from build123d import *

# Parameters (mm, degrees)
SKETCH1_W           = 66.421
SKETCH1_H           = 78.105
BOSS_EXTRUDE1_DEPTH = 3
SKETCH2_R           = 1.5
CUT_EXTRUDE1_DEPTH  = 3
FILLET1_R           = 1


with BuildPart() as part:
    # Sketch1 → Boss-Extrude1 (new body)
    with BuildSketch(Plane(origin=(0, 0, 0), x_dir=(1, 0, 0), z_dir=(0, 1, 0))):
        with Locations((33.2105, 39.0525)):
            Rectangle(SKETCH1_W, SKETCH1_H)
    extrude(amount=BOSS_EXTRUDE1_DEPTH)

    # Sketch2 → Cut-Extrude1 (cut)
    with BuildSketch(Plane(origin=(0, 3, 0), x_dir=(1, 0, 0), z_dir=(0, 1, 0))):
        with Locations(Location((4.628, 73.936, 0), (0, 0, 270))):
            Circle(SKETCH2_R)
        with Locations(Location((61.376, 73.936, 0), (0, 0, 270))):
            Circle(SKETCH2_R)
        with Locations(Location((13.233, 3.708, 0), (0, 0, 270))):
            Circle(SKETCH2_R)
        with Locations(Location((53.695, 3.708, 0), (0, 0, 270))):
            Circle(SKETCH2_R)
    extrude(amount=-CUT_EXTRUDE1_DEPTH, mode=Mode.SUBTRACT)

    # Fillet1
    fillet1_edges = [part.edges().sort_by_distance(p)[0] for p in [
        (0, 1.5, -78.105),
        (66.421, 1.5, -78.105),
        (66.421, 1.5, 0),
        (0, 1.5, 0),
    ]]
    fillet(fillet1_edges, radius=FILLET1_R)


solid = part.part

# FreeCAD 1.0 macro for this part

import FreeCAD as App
import Part
import Sketcher
from FreeCAD import Vector
Q = App.Units.Quantity


def edges_at(feature, points):
    """Names of the edges that pass closest to the given points."""
    edges = feature.Shape.Edges
    near = lambda p: min(range(len(edges)), key=lambda i: edges[i].distToShape(Part.Vertex(*p))[0])
    return sorted({f"Edge{near(p) + 1}" for p in points})


def add_polygon(sketch, points):
    """Adds a closed chain of lines whose ends are joined by coincident constraints."""
    first, n = sketch.GeometryCount, len(points)
    for a, b in zip(points, points[1:] + points[:1]):
        sketch.addGeometry(Part.LineSegment(App.Vector(*a, 0), App.Vector(*b, 0)), False)
    for i in range(n):
        sketch.addConstraint(Sketcher.Constraint("Coincident", first + i, 2, first + (i + 1) % n, 1))

doc = App.newDocument("Part")
body = doc.addObject("PartDesign::Body", "Body")

sketch1 = doc.addObject("Sketcher::SketchObject", "Sketch")
body.addObject(sketch1)
sketch1.AttachmentSupport = (doc.XZ_Plane, [""])
sketch1.MapMode = "FlatFace"
add_polygon(sketch1, [(0, -78), (0, 0), (66, 0), (66, -78)])
sketch1.addConstraint([
    Sketcher.Constraint("Vertical", 0),
    Sketcher.Constraint("Horizontal", 1),
    Sketcher.Constraint("Vertical", 2),
    Sketcher.Constraint("Horizontal", 3),
    Sketcher.Constraint("Coincident", 0, 2, -1, 1),
    Sketcher.Constraint("DistanceX", 1, 1, 1, 2, Q("66.421 mm")),
    Sketcher.Constraint("DistanceY", 0, 1, 0, 2, Q("78.105 mm")),
])
pad1 = doc.addObject("PartDesign::Pad", "Pad")
body.addObject(pad1)
pad1.Profile = sketch1
pad1.Length = 3
pad1.Reversed = True

sketch2 = doc.addObject("Sketcher::SketchObject", "Sketch001")
body.addObject(sketch2)
sketch2.AttachmentSupport = (doc.XZ_Plane, [""])
sketch2.MapMode = "FlatFace"
sketch2.AttachmentOffset = App.Placement(Vector(0, 0, -3), App.Rotation())
sketch2.addGeometry([
    Part.Circle(Vector(4.6, -73.9, 0), Vector(0, 0, 1), 1.5),
    Part.Circle(Vector(61.4, -73.9, 0), Vector(0, 0, 1), 1.5),
    Part.Circle(Vector(13.2, -3.7, 0), Vector(0, 0, 1), 1.5),
    Part.Circle(Vector(53.7, -3.7, 0), Vector(0, 0, 1), 1.5),
], False)
sketch2.addConstraint([
    Sketcher.Constraint("Equal", 0, 1),
    Sketcher.Constraint("Equal", 1, 2),
    Sketcher.Constraint("Equal", 2, 3),
    Sketcher.Constraint("Horizontal", 0, 3, 1, 3),
    Sketcher.Constraint("Horizontal", 2, 3, 3, 3),
    Sketcher.Constraint("Diameter", 0, Q("3 mm")),
    Sketcher.Constraint("DistanceX", -1, 1, 0, 3, Q("4.628 mm")),
    Sketcher.Constraint("DistanceY", 0, 3, -1, 1, Q("73.936 mm")),
    Sketcher.Constraint("DistanceX", -1, 1, 1, 3, Q("61.376 mm")),
    Sketcher.Constraint("DistanceX", -1, 1, 2, 3, Q("13.233 mm")),
    Sketcher.Constraint("DistanceY", 2, 3, -1, 1, Q("3.708 mm")),
    Sketcher.Constraint("DistanceX", -1, 1, 3, 3, Q("53.695 mm")),
])
pocket1 = doc.addObject("PartDesign::Pocket", "Pocket")
body.addObject(pocket1)
pocket1.Profile = sketch2
pocket1.Length = 3
pocket1.Reversed = True
doc.recompute()

fillet = doc.addObject("PartDesign::Fillet", "Fillet")
body.addObject(fillet)
fillet.Base = (pocket1, edges_at(pocket1, [
    (0, 1.5, -78.105),
    (66.421, 1.5, -78.105),
    (66.421, 1.5, 0),
    (0, 1.5, 0),
]))
fillet.Radius = 1

doc.recompute()
